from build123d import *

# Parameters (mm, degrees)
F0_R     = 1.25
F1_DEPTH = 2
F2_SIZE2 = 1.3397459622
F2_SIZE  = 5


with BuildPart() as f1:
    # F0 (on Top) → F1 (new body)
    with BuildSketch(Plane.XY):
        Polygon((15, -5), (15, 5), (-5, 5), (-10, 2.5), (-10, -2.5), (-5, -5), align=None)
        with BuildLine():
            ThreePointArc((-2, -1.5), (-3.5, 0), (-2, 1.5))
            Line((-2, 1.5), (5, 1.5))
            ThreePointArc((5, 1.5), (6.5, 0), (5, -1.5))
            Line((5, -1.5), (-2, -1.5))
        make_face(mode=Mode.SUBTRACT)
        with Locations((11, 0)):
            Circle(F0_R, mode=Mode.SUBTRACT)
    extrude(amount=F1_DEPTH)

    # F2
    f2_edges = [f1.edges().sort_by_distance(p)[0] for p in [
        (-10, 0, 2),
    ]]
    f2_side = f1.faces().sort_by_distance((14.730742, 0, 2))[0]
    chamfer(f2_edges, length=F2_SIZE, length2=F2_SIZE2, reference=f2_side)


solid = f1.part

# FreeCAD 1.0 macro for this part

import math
import FreeCAD as App
import Part
import Sketcher


def edges_at(feature, points):
    """Names of the edges that pass closest to the given points."""
    edges = feature.Shape.Edges
    near = lambda p: min(range(len(edges)), key=lambda i: edges[i].distToShape(Part.Vertex(*p))[0])
    return sorted({f"Edge{near(p) + 1}" for p in points})


def add_polygon(sketch, points):
    """Adds a closed chain of lines whose ends are joined by coincident constraints."""
    first, n = sketch.GeometryCount, len(points)
    for a, b in zip(points, points[1:] + points[:1]):
        sketch.addGeometry(Part.LineSegment(App.Vector(*a, 0), App.Vector(*b, 0)), False)
    for i in range(n):
        sketch.addConstraint(Sketcher.Constraint("Coincident", first + i, 2, first + (i + 1) % n, 1))

doc = App.newDocument("Part")
body = doc.addObject("PartDesign::Body", "Body")

sketch1 = doc.addObject("Sketcher::SketchObject", "Sketch")
body.addObject(sketch1)
sketch1.AttachmentSupport = (doc.XY_Plane, [""])
sketch1.MapMode = "FlatFace"
add_polygon(sketch1, [(15, -5), (15, 5), (-5, 5), (-10, 2.5), (-10, -2.5), (-5, -5)])
sketch1.addGeometry(Part.LineSegment(App.Vector(5, -1.5, 0), App.Vector(-2, -1.5, 0)), False)
sketch1.addGeometry(Part.ArcOfCircle(Part.Circle(App.Vector(-2, 0, 0), App.Vector(0, 0, 1), 1.5), math.radians(90), math.radians(270)), False)
sketch1.addGeometry(Part.LineSegment(App.Vector(-2, 1.5, 0), App.Vector(5, 1.5, 0)), False)
sketch1.addGeometry(Part.ArcOfCircle(Part.Circle(App.Vector(5, 0, 0), App.Vector(0, 0, 1), 1.5), math.radians(-90), math.radians(90)), False)
sketch1.addGeometry(Part.Circle(App.Vector(11, 0, 0), App.Vector(0, 0, 1), 1.2), False)
sketch1.addConstraint([
    Sketcher.Constraint("Tangent", 6, 2, 7, 2),
    Sketcher.Constraint("Tangent", 7, 1, 8, 1),
    Sketcher.Constraint("Tangent", 8, 2, 9, 2),
    Sketcher.Constraint("Tangent", 9, 1, 6, 1),
    Sketcher.Constraint("Vertical", 0),
    Sketcher.Constraint("Horizontal", 1),
    Sketcher.Constraint("Vertical", 3),
    Sketcher.Constraint("Horizontal", 5),
    Sketcher.Constraint("Horizontal", 6),
    Sketcher.Constraint("Horizontal", 8),
    Sketcher.Constraint("Symmetric", 1, 2, 4, 2, -1),
    Sketcher.Constraint("PointOnObject", 7, 3, -1),
    Sketcher.Constraint("PointOnObject", 10, 3, -1),
    Sketcher.Constraint("Equal", 2, 4),
    Sketcher.Constraint("Diameter", 10, 2.5),
    Sketcher.Constraint("Radius", 7, 1.5),
    Sketcher.Constraint("DistanceX", 1, 2, 1, 1, 20.0),
    Sketcher.Constraint("DistanceX", 6, 2, 6, 1, 7.0),
    Sketcher.Constraint("DistanceY", 0, 1, 0, 2, 10.0),
    Sketcher.Constraint("DistanceY", 3, 2, 3, 1, 5.0),
    Sketcher.Constraint("DistanceX", 7, 3, -1, 1, 2.0),
    Sketcher.Constraint("DistanceX", -1, 1, 10, 3, 11.0),
    Sketcher.Constraint("DistanceX", -1, 1, 0, 2, 15.0),
    Sketcher.Constraint("DistanceX", 2, 2, -1, 1, 10.0),
])
pad1 = doc.addObject("PartDesign::Pad", "Pad")
body.addObject(pad1)
pad1.Profile = sketch1
pad1.Length = 2
doc.recompute()

chamfer = doc.addObject("PartDesign::Chamfer", "Chamfer")
body.addObject(chamfer)
chamfer.Base = (pad1, edges_at(pad1, [(-10, 0, 2)]))
chamfer.ChamferType = "Two distances"
chamfer.Size = 5
chamfer.Size2 = 1.339746
chamfer.FlipDirection = True

doc.recompute()
